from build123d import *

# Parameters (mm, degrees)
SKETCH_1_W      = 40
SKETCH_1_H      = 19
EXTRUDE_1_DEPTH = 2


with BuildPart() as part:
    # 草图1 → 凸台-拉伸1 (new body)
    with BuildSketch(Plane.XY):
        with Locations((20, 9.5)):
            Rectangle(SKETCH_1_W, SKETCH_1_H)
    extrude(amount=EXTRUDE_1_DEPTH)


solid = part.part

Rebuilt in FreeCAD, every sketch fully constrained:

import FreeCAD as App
import Part
import Sketcher
from FreeCAD import Vector
Q = App.Units.Quantity


def add_polygon(sketch, points):
    """Adds a closed chain of lines whose ends are joined by coincident constraints."""
    first, n = sketch.GeometryCount, len(points)
    for a, b in zip(points, points[1:] + points[:1]):
        sketch.addGeometry(Part.LineSegment(App.Vector(*a, 0), App.Vector(*b, 0)), False)
    for i in range(n):
        sketch.addConstraint(Sketcher.Constraint("Coincident", first + i, 2, first + (i + 1) % n, 1))

doc = App.newDocument("Part")
body = doc.addObject("PartDesign::Body", "Body")

sketch1 = doc.addObject("Sketcher::SketchObject", "Sketch")
body.addObject(sketch1)
sketch1.AttachmentSupport = (doc.XY_Plane, [""])
sketch1.MapMode = "FlatFace"
add_polygon(sketch1, [(0, 19), (0, 0), (40, 0), (40, 19)])
sketch1.addConstraint(Sketcher.Constraint("Vertical", 0))
sketch1.addConstraint(Sketcher.Constraint("Horizontal", 1))
sketch1.addConstraint(Sketcher.Constraint("Vertical", 2))
sketch1.addConstraint(Sketcher.Constraint("Horizontal", 3))
sketch1.addConstraint(Sketcher.Constraint("Coincident", 0, 2, -1, 1))
sketch1.addConstraint(Sketcher.Constraint("DistanceX", 1, 1, 1, 2, Q("40 mm")))
sketch1.addConstraint(Sketcher.Constraint("DistanceY", 0, 2, 0, 1, Q("19 mm")))
pad1 = doc.addObject("PartDesign::Pad", "Pad")
body.addObject(pad1)
pad1.Profile = sketch1
pad1.Length = 2

doc.recompute()
